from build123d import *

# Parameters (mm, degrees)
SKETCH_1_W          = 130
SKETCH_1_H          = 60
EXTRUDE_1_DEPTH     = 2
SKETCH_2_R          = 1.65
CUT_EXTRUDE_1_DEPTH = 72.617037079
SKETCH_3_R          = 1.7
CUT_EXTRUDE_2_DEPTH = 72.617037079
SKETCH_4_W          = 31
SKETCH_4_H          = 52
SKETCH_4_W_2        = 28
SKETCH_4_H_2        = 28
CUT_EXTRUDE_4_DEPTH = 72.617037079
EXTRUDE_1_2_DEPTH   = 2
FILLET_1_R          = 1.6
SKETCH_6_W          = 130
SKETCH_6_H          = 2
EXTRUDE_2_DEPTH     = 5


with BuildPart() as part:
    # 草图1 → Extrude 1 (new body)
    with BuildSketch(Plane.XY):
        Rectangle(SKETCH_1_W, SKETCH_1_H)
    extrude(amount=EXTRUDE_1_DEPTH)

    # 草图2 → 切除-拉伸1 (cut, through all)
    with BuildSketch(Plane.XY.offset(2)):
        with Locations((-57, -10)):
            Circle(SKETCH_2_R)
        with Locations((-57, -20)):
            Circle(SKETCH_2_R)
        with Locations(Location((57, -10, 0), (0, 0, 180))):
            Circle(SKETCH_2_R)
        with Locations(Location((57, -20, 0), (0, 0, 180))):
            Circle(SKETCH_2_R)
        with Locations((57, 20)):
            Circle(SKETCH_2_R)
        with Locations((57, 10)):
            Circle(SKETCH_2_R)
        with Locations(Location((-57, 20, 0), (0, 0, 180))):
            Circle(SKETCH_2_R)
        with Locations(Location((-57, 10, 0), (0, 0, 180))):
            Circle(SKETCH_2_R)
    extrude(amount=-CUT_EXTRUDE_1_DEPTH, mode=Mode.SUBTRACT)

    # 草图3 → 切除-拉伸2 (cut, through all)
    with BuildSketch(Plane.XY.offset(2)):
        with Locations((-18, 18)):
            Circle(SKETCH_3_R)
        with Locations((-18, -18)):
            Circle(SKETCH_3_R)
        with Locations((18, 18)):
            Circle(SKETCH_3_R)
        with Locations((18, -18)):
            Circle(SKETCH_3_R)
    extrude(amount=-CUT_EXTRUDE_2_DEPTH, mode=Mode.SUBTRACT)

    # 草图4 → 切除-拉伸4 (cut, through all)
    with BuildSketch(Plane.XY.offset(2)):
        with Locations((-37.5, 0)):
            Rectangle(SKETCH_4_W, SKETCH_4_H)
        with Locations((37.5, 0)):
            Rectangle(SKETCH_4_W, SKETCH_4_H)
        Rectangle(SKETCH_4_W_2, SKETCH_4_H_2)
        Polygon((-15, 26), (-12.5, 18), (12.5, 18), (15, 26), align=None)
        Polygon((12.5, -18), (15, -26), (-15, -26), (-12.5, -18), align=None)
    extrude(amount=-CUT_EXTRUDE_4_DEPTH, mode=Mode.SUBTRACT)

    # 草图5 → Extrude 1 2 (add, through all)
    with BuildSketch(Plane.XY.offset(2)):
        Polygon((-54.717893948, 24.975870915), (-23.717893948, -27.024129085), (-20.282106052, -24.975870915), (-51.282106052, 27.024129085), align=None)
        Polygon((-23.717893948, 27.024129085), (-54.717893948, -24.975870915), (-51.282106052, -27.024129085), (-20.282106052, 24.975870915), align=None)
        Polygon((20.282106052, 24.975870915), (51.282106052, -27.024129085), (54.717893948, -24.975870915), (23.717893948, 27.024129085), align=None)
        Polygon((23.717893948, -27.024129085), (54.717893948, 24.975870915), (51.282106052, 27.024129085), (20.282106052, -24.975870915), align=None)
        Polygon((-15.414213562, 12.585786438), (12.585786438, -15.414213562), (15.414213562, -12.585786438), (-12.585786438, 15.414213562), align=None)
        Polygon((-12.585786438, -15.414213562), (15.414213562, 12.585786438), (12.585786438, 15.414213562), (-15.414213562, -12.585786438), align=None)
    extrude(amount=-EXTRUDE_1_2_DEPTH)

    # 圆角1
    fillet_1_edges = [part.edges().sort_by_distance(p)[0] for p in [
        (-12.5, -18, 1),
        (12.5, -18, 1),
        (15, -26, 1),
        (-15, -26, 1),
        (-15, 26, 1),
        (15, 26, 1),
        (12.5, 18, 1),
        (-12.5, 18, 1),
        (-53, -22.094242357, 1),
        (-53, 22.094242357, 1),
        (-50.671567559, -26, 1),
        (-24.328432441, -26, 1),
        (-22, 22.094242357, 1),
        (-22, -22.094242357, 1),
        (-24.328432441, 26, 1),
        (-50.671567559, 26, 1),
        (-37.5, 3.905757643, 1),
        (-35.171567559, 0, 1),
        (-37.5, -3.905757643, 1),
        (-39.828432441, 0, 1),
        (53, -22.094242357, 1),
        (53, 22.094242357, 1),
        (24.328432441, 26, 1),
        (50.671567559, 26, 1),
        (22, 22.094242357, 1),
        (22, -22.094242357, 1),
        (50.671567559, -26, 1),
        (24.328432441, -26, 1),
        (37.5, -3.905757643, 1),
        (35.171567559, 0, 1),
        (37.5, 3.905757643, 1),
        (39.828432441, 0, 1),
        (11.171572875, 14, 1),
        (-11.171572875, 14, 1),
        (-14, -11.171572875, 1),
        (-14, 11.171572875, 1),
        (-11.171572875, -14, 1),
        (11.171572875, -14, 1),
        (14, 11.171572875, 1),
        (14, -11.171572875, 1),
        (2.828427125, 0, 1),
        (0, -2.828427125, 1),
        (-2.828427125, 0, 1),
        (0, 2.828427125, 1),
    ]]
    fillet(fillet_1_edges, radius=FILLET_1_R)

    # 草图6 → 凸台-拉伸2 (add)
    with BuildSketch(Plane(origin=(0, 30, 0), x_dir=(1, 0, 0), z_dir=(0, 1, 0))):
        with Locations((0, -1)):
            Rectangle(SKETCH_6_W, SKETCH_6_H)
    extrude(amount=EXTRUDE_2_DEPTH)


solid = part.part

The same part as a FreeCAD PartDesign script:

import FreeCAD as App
import Part
import Sketcher
from FreeCAD import Vector


def edges_at(feature, points):
    """Names of the edges that pass closest to the given points."""
    edges = feature.Shape.Edges
    near = lambda p: min(range(len(edges)), key=lambda i: edges[i].distToShape(Part.Vertex(*p))[0])
    return sorted({f"Edge{near(p) + 1}" for p in points})


def add_polygon(sketch, points):
    """Adds a closed chain of lines whose ends are joined by coincident constraints."""
    first, n = sketch.GeometryCount, len(points)
    for a, b in zip(points, points[1:] + points[:1]):
        sketch.addGeometry(Part.LineSegment(App.Vector(*a, 0), App.Vector(*b, 0)), False)
    for i in range(n):
        sketch.addConstraint(Sketcher.Constraint("Coincident", first + i, 2, first + (i + 1) % n, 1))

doc = App.newDocument("Part")
params = doc.addObject("Spreadsheet::Sheet", "Params")
for row, (alias, value) in enumerate([
    ("sketch1_width", "130 mm"),
    ("sketch1_height", "60 mm"),
    ("pad1_length", "2 mm"),
    ("sketch2_diameter", "3.3 mm"),
    ("sketch3_diameter", "3.4 mm"),
    ("sketch4_width", "31 mm"),
    ("sketch4_width2", "28 mm"),
    ("sketch4_width3", "25 mm"),
    ("sketch4_width4", "30 mm"),
    ("sketch4_height", "52 mm"),
    ("sketch5_length", "4 mm"),
    ("pad2_length", "2 mm"),
    ("fillet_radius", "1.6 mm"),
    ("sketch6_width", "130 mm"),
    ("sketch6_height", "2 mm"),
    ("pad3_length", "5 mm"),
], start=1):
    params.set(f"A{row}", alias)
    params.set(f"B{row}", "=" + value)
    params.setAlias(f"B{row}", alias)

body = doc.addObject("PartDesign::Body", "Body")

# Sketch on XY plane
sketch1 = doc.addObject("Sketcher::SketchObject", "Sketch")
body.addObject(sketch1)
sketch1.AttachmentSupport = (doc.XY_Plane, [""])
sketch1.MapMode = "FlatFace"
add_polygon(sketch1, [(-65, 30), (-65, -30), (65, -30), (65, 30)])  # lines 0-3
sketch1.addConstraint([
    Sketcher.Constraint("Vertical", 0),
    Sketcher.Constraint("Horizontal", 1),
    Sketcher.Constraint("Vertical", 2),
    Sketcher.Constraint("Horizontal", 3),
    Sketcher.Constraint("Symmetric", 0, 2, 2, 2, -1, 1),
    Sketcher.Constraint("DistanceX", 1, 1, 1, 2, 130.0),
    Sketcher.Constraint("DistanceY", 0, 2, 0, 1, 60.0),
])
sketch1.setExpression("Constraints[9]", "Params.sketch1_width")
sketch1.setExpression("Constraints[10]", "Params.sketch1_height")
pad1 = doc.addObject("PartDesign::Pad", "Pad")
body.addObject(pad1)
pad1.Profile = sketch1
pad1.setExpression("Length", "Params.pad1_length")

# Sketch on XY plane
sketch2 = doc.addObject("Sketcher::SketchObject", "Sketch001")
body.addObject(sketch2)
sketch2.AttachmentSupport = (doc.XY_Plane, [""])
sketch2.MapMode = "FlatFace"
sketch2.AttachmentOffset = App.Placement(Vector(0, 0, 2), App.Rotation())
sketch2.addGeometry([
    Part.Circle(Vector(-57, -10, 0), Vector(0, 0, 1), 1.6),  # 0
    Part.Circle(Vector(-57, -20, 0), Vector(0, 0, 1), 1.6),  # 1
    Part.Circle(Vector(57, -10, 0), Vector(0, 0, 1), 1.6),  # 2
    Part.Circle(Vector(57, -20, 0), Vector(0, 0, 1), 1.6),  # 3
    Part.Circle(Vector(57, 20, 0), Vector(0, 0, 1), 1.6),  # 4
    Part.Circle(Vector(57, 10, 0), Vector(0, 0, 1), 1.6),  # 5
    Part.Circle(Vector(-57, 20, 0), Vector(0, 0, 1), 1.6),  # 6
    Part.Circle(Vector(-57, 10, 0), Vector(0, 0, 1), 1.6),  # 7
], False)
sketch2.addConstraint([
    Sketcher.Constraint("Equal", 0, 1),
    Sketcher.Constraint("Equal", 1, 2),
    Sketcher.Constraint("Equal", 2, 3),
    Sketcher.Constraint("Equal", 3, 4),
    Sketcher.Constraint("Equal", 4, 5),
    Sketcher.Constraint("Equal", 5, 6),
    Sketcher.Constraint("Equal", 6, 7),
    Sketcher.Constraint("Symmetric", 1, 3, 4, 3, -1, 1),
    Sketcher.Constraint("Symmetric", 0, 3, 5, 3, -1, 1),
    Sketcher.Constraint("Symmetric", 3, 3, 6, 3, -1, 1),
    Sketcher.Constraint("Symmetric", 2, 3, 7, 3, -1, 1),
    Sketcher.Constraint("Symmetric", 0, 3, 2, 3, -2),
    Sketcher.Constraint("Symmetric", 1, 3, 3, 3, -2),
    Sketcher.Constraint("Vertical", 0, 3, 1, 3),
    Sketcher.Constraint("Diameter", 0, 3.3),
    Sketcher.Constraint("DistanceX", 0, 3, -1, 1, 57.0),
    Sketcher.Constraint("DistanceY", 0, 3, -1, 1, 10.0),
    Sketcher.Constraint("DistanceY", 1, 3, -1, 1, 20.0),
])
sketch2.setExpression("Constraints[14]", "Params.sketch2_diameter")
pocket1 = doc.addObject("PartDesign::Pocket", "Pocket")
body.addObject(pocket1)
pocket1.Profile = sketch2
pocket1.Type = "ThroughAll"

# Sketch on XY plane
sketch3 = doc.addObject("Sketcher::SketchObject", "Sketch002")
body.addObject(sketch3)
sketch3.AttachmentSupport = (doc.XY_Plane, [""])
sketch3.MapMode = "FlatFace"
sketch3.AttachmentOffset = App.Placement(Vector(0, 0, 2), App.Rotation())
sketch3.addGeometry([
    Part.Circle(Vector(-18, 18, 0), Vector(0, 0, 1), 1.7),
    Part.Circle(Vector(-18, -18, 0), Vector(0, 0, 1), 1.7),
    Part.Circle(Vector(18, 18, 0), Vector(0, 0, 1), 1.7),
    Part.Circle(Vector(18, -18, 0), Vector(0, 0, 1), 1.7),
], False)
sketch3.addConstraint([
    Sketcher.Constraint("Equal", 0, 1),
    Sketcher.Constraint("Equal", 1, 2),
    Sketcher.Constraint("Equal", 2, 3),
    Sketcher.Constraint("Symmetric", 1, 3, 2, 3, -1, 1),
    Sketcher.Constraint("Symmetric", 0, 3, 3, 3, -1, 1),
    Sketcher.Constraint("Symmetric", 0, 3, 2, 3, -2),
    Sketcher.Constraint("Diameter", 0, 3.4),
    Sketcher.Constraint("DistanceX", 0, 3, -1, 1, 18.0),
    Sketcher.Constraint("DistanceY", -1, 1, 0, 3, 18.0),
])
sketch3.setExpression("Constraints[6]", "Params.sketch3_diameter")
pocket2 = doc.addObject("PartDesign::Pocket", "Pocket001")
body.addObject(pocket2)
pocket2.Profile = sketch3
pocket2.Type = "ThroughAll"

# Sketch on XY plane
sketch4 = doc.addObject("Sketcher::SketchObject", "Sketch003")
body.addObject(sketch4)
sketch4.AttachmentSupport = (doc.XY_Plane, [""])
sketch4.MapMode = "FlatFace"
sketch4.AttachmentOffset = App.Placement(Vector(0, 0, 2), App.Rotation())
add_polygon(sketch4, [(-53, 26), (-53, -26), (-22, -26), (-22, 26)])  # lines 0-3
add_polygon(sketch4, [(22, 26), (22, -26), (53, -26), (53, 26)])  # lines 4-7
add_polygon(sketch4, [(-14, 14), (-14, -14), (14, -14), (14, 14)])  # lines 8-11
add_polygon(sketch4, [(-15, 26), (-12, 18), (12, 18), (15, 26)])  # lines 12-15
add_polygon(sketch4, [(15, -26), (12, -18), (-12, -18), (-15, -26)])  # lines 16-19
sketch4.addConstraint([
    Sketcher.Constraint("Vertical", 0),
    Sketcher.Constraint("Horizontal", 1),
    Sketcher.Constraint("Vertical", 2),
    Sketcher.Constraint("Horizontal", 3),
    Sketcher.Constraint("Vertical", 4),
    Sketcher.Constraint("Horizontal", 5),
    Sketcher.Constraint("Vertical", 6),
    Sketcher.Constraint("Horizontal", 7),
    Sketcher.Constraint("Vertical", 8),
    Sketcher.Constraint("Horizontal", 9),
    Sketcher.Constraint("Vertical", 10),
    Sketcher.Constraint("Horizontal", 11),
    Sketcher.Constraint("Horizontal", 13),
    Sketcher.Constraint("Horizontal", 15),
    Sketcher.Constraint("Horizontal", 17),
    Sketcher.Constraint("Horizontal", 19),
    Sketcher.Constraint("Symmetric", 2, 2, 4, 2, -1, 1),
    Sketcher.Constraint("Symmetric", 0, 2, 6, 2, -1, 1),
    Sketcher.Constraint("Symmetric", 8, 2, 10, 2, -1, 1),
    Sketcher.Constraint("Symmetric", 12, 2, 16, 2, -1, 1),
    Sketcher.Constraint("Symmetric", 14, 2, 18, 2, -1, 1),
    Sketcher.Constraint("Parallel", 12, 16),
    Sketcher.Constraint("Parallel", 14, 18),
    Sketcher.Constraint("Horizontal", 1, 2, 4, 2),
    Sketcher.Constraint("Horizontal", 7, 2, 14, 2),
    Sketcher.Constraint("Vertical", 13, 2, 16, 2),
    Sketcher.Constraint("Vertical", 15, 2, 18, 2),
    Sketcher.Constraint("Equal", 11, 8),
    Sketcher.Constraint("DistanceX", 1, 1, 1, 2, 31.0),
    Sketcher.Constraint("DistanceX", 9, 1, 9, 2, 28.0),
    Sketcher.Constraint("DistanceX", 13, 1, 13, 2, 25.0),
    Sketcher.Constraint("DistanceX", 15, 2, 15, 1, 30.0),
    Sketcher.Constraint("DistanceY", 0, 2, 0, 1, 52.0),
    Sketcher.Constraint("DistanceX", 0, 2, -1, 1, 53.0),
    Sketcher.Constraint("DistanceY", -1, 1, 12, 2, 18.0),
])
sketch4.setExpression("Constraints[48]", "Params.sketch4_width")
sketch4.setExpression("Constraints[49]", "Params.sketch4_width2")
sketch4.setExpression("Constraints[50]", "Params.sketch4_width3")
sketch4.setExpression("Constraints[51]", "Params.sketch4_width4")
sketch4.setExpression("Constraints[52]", "Params.sketch4_height")
pocket3 = doc.addObject("PartDesign::Pocket", "Pocket002")
body.addObject(pocket3)
pocket3.Profile = sketch4
pocket3.Type = "ThroughAll"

# Sketch on XY plane
sketch5 = doc.addObject("Sketcher::SketchObject", "Sketch004")
body.addObject(sketch5)
sketch5.AttachmentSupport = (doc.XY_Plane, [""])
sketch5.MapMode = "FlatFace"
sketch5.AttachmentOffset = App.Placement(Vector(0, 0, 2), App.Rotation())
add_polygon(sketch5, [(-51.3, 27), (-54.7, 25), (-39.8, 0), (-54.7, -25), (-51.3, -27), (-37.5, -3.9), (-23.7, -27), (-20.3, -25), (-35.2, 0), (-20.3, 25), (-23.7, 27), (-37.5, 3.9)])  # lines 0-11
add_polygon(sketch5, [(23.7, 27), (20.3, 25), (35.2, 0), (20.3, -25), (23.7, -27), (37.5, -3.9), (51.3, -27), (54.7, -25), (39.8, 0), (54.7, 25), (51.3, 27), (37.5, 3.9)])  # lines 12-23
add_polygon(sketch5, [(-12.6, 15.4), (-15.4, 12.6), (-2.8, 0), (-15.4, -12.6), (-12.6, -15.4), (0, -2.8), (12.6, -15.4), (15.4, -12.6), (2.8, 0), (15.4, 12.6), (12.6, 15.4), (0, 2.8)])  # lines 24-35
sketch5.addConstraint([
    Sketcher.Constraint("Symmetric", 6, 2, 12, 2, -1, 1),
    Sketcher.Constraint("Symmetric", 7, 2, 13, 2, -1, 1),
    Sketcher.Constraint("Symmetric", 8, 2, 14, 2, -1, 1),
    Sketcher.Constraint("Symmetric", 9, 2, 15, 2, -1, 1),
    Sketcher.Constraint("Symmetric", 10, 2, 16, 2, -1, 1),
    Sketcher.Constraint("Symmetric", 11, 2, 17, 2, -1, 1),
    Sketcher.Constraint("Symmetric", 0, 2, 18, 2, -1, 1),
    Sketcher.Constraint("Symmetric", 1, 2, 19, 2, -1, 1),
    Sketcher.Constraint("Symmetric", 2, 2, 20, 2, -1, 1),
    Sketcher.Constraint("Symmetric", 3, 2, 21, 2, -1, 1),
    Sketcher.Constraint("Symmetric", 4, 2, 22, 2, -1, 1),
    Sketcher.Constraint("Symmetric", 5, 2, 23, 2, -1, 1),
    Sketcher.Constraint("Symmetric", 24, 2, 30, 2, -1, 1),
    Sketcher.Constraint("Symmetric", 25, 2, 31, 2, -1, 1),
    Sketcher.Constraint("Symmetric", 26, 2, 32, 2, -1, 1),
    Sketcher.Constraint("Symmetric", 27, 2, 33, 2, -1, 1),
    Sketcher.Constraint("Symmetric", 28, 2, 34, 2, -1, 1),
    Sketcher.Constraint("Symmetric", 29, 2, 35, 2, -1, 1),
    Sketcher.Constraint("Symmetric", 8, 2, 12, 2, -2),
    Sketcher.Constraint("Symmetric", 5, 2, 15, 2, -2),
    Sketcher.Constraint("Symmetric", 4, 2, 16, 2, -2),
    Sketcher.Constraint("Symmetric", 3, 2, 17, 2, -2),
    Sketcher.Constraint("Symmetric", 2, 2, 18, 2, -2),
    Sketcher.Constraint("Symmetric", 27, 2, 29, 2, -2),
    Sketcher.Constraint("Symmetric", 26, 2, 30, 2, -2),
    Sketcher.Constraint("PointOnObject", 1, 2, -1),
    Sketcher.Constraint("PointOnObject", 7, 2, -1),
    Sketcher.Constraint("PointOnObject", 25, 2, -1),
    Sketcher.Constraint("PointOnObject", 28, 2, -2),
    Sketcher.Constraint("Perpendicular", 0, 1),
    Sketcher.Constraint("Perpendicular", 3, 4),
    Sketcher.Constraint("Parallel", 1, 5),
    Sketcher.Constraint("Perpendicular", 5, 6),
    Sketcher.Constraint("Perpendicular", 6, 7),
    Sketcher.Constraint("Perpendicular", 24, 25),
    Sketcher.Constraint("Perpendicular", 25, 26),
    Sketcher.Constraint("Perpendicular", 27, 28),
    Sketcher.Constraint("Horizontal", 3, 2, 5, 2),
    Sketcher.Constraint("Horizontal", 2, 2, 6, 2),
    Sketcher.Constraint("Equal", 21, 24),
    Sketcher.Constraint("Equal", 26, 28),
    Sketcher.Constraint("Distance", 0, 4.0),
    Sketcher.Constraint("DistanceY", 3, 2, 0, 2, 52.0),
    Sketcher.Constraint("DistanceX", 2, 2, 5, 2, 31.0),
    Sketcher.Constraint("DistanceX", 9, 2, 12, 2, 44.0),
    Sketcher.Constraint("Distance", 25, 17.79899),
    Sketcher.Constraint("DistanceY", -1, 1, 0, 2, 24.975871),
])
sketch5.setExpression("Constraints[77]", "Params.sketch5_length")
pad2 = doc.addObject("PartDesign::Pad", "Pad001")
body.addObject(pad2)
pad2.Profile = sketch5
pad2.setExpression("Length", "Params.pad2_length")
pad2.Reversed = True
doc.recompute()

fillet = doc.addObject("PartDesign::Fillet", "Fillet")
body.addObject(fillet)
fillet.Base = (pad2, edges_at(pad2, [
    (-12.5, -18, 1),
    (12.5, -18, 1),
    (15, -26, 1),
    (-15, -26, 1),
    (-15, 26, 1),
    (15, 26, 1),
    (12.5, 18, 1),
    (-12.5, 18, 1),
    (-53, -22.094, 1),
    (-53, 22.094, 1),
    (-50.672, -26, 1),
    (-24.328, -26, 1),
    (-22, 22.094, 1),
    (-22, -22.094, 1),
    (-24.328, 26, 1),
    (-50.672, 26, 1),
    (-37.5, 3.906, 1),
    (-35.172, 0, 1),
    (-37.5, -3.906, 1),
    (-39.828, 0, 1),
    (53, -22.094, 1),
    (53, 22.094, 1),
    (24.328, 26, 1),
    (50.672, 26, 1),
    (22, 22.094, 1),
    (22, -22.094, 1),
    (50.672, -26, 1),
    (24.328, -26, 1),
    (37.5, -3.906, 1),
    (35.172, 0, 1),
    (37.5, 3.906, 1),
    (39.828, 0, 1),
    (11.172, 14, 1),
    (-11.172, 14, 1),
    (-14, -11.172, 1),
    (-14, 11.172, 1),
    (-11.172, -14, 1),
    (11.172, -14, 1),
    (14, 11.172, 1),
    (14, -11.172, 1),
    (2.828, 0, 1),
    (0, -2.828, 1),
    (-2.828, 0, 1),
    (0, 2.828, 1),
]))
fillet.setExpression("Radius", "Params.fillet_radius")

# Sketch on XZ plane
sketch6 = doc.addObject("Sketcher::SketchObject", "Sketch005")
body.addObject(sketch6)
sketch6.AttachmentSupport = (doc.XZ_Plane, [""])
sketch6.MapMode = "FlatFace"
sketch6.AttachmentOffset = App.Placement(Vector(0, 0, -30), App.Rotation())
add_polygon(sketch6, [(-65, 0), (-65, 2), (65, 2), (65, 0)])  # lines 0-3
sketch6.addConstraint([
    Sketcher.Constraint("Vertical", 0),
    Sketcher.Constraint("Horizontal", 1),
    Sketcher.Constraint("Vertical", 2),
    Sketcher.Constraint("Horizontal", 3),
    Sketcher.Constraint("Symmetric", 2, 2, 3, 2, -1, 1),
    Sketcher.Constraint("DistanceX", 1, 1, 1, 2, 130.0),
    Sketcher.Constraint("DistanceY", 0, 1, 0, 2, 2.0),
])
sketch6.setExpression("Constraints[9]", "Params.sketch6_width")
sketch6.setExpression("Constraints[10]", "Params.sketch6_height")
pad3 = doc.addObject("PartDesign::Pad", "Pad002")
body.addObject(pad3)
pad3.Profile = sketch6
pad3.setExpression("Length", "Params.pad3_length")
pad3.Reversed = True

doc.recompute()
